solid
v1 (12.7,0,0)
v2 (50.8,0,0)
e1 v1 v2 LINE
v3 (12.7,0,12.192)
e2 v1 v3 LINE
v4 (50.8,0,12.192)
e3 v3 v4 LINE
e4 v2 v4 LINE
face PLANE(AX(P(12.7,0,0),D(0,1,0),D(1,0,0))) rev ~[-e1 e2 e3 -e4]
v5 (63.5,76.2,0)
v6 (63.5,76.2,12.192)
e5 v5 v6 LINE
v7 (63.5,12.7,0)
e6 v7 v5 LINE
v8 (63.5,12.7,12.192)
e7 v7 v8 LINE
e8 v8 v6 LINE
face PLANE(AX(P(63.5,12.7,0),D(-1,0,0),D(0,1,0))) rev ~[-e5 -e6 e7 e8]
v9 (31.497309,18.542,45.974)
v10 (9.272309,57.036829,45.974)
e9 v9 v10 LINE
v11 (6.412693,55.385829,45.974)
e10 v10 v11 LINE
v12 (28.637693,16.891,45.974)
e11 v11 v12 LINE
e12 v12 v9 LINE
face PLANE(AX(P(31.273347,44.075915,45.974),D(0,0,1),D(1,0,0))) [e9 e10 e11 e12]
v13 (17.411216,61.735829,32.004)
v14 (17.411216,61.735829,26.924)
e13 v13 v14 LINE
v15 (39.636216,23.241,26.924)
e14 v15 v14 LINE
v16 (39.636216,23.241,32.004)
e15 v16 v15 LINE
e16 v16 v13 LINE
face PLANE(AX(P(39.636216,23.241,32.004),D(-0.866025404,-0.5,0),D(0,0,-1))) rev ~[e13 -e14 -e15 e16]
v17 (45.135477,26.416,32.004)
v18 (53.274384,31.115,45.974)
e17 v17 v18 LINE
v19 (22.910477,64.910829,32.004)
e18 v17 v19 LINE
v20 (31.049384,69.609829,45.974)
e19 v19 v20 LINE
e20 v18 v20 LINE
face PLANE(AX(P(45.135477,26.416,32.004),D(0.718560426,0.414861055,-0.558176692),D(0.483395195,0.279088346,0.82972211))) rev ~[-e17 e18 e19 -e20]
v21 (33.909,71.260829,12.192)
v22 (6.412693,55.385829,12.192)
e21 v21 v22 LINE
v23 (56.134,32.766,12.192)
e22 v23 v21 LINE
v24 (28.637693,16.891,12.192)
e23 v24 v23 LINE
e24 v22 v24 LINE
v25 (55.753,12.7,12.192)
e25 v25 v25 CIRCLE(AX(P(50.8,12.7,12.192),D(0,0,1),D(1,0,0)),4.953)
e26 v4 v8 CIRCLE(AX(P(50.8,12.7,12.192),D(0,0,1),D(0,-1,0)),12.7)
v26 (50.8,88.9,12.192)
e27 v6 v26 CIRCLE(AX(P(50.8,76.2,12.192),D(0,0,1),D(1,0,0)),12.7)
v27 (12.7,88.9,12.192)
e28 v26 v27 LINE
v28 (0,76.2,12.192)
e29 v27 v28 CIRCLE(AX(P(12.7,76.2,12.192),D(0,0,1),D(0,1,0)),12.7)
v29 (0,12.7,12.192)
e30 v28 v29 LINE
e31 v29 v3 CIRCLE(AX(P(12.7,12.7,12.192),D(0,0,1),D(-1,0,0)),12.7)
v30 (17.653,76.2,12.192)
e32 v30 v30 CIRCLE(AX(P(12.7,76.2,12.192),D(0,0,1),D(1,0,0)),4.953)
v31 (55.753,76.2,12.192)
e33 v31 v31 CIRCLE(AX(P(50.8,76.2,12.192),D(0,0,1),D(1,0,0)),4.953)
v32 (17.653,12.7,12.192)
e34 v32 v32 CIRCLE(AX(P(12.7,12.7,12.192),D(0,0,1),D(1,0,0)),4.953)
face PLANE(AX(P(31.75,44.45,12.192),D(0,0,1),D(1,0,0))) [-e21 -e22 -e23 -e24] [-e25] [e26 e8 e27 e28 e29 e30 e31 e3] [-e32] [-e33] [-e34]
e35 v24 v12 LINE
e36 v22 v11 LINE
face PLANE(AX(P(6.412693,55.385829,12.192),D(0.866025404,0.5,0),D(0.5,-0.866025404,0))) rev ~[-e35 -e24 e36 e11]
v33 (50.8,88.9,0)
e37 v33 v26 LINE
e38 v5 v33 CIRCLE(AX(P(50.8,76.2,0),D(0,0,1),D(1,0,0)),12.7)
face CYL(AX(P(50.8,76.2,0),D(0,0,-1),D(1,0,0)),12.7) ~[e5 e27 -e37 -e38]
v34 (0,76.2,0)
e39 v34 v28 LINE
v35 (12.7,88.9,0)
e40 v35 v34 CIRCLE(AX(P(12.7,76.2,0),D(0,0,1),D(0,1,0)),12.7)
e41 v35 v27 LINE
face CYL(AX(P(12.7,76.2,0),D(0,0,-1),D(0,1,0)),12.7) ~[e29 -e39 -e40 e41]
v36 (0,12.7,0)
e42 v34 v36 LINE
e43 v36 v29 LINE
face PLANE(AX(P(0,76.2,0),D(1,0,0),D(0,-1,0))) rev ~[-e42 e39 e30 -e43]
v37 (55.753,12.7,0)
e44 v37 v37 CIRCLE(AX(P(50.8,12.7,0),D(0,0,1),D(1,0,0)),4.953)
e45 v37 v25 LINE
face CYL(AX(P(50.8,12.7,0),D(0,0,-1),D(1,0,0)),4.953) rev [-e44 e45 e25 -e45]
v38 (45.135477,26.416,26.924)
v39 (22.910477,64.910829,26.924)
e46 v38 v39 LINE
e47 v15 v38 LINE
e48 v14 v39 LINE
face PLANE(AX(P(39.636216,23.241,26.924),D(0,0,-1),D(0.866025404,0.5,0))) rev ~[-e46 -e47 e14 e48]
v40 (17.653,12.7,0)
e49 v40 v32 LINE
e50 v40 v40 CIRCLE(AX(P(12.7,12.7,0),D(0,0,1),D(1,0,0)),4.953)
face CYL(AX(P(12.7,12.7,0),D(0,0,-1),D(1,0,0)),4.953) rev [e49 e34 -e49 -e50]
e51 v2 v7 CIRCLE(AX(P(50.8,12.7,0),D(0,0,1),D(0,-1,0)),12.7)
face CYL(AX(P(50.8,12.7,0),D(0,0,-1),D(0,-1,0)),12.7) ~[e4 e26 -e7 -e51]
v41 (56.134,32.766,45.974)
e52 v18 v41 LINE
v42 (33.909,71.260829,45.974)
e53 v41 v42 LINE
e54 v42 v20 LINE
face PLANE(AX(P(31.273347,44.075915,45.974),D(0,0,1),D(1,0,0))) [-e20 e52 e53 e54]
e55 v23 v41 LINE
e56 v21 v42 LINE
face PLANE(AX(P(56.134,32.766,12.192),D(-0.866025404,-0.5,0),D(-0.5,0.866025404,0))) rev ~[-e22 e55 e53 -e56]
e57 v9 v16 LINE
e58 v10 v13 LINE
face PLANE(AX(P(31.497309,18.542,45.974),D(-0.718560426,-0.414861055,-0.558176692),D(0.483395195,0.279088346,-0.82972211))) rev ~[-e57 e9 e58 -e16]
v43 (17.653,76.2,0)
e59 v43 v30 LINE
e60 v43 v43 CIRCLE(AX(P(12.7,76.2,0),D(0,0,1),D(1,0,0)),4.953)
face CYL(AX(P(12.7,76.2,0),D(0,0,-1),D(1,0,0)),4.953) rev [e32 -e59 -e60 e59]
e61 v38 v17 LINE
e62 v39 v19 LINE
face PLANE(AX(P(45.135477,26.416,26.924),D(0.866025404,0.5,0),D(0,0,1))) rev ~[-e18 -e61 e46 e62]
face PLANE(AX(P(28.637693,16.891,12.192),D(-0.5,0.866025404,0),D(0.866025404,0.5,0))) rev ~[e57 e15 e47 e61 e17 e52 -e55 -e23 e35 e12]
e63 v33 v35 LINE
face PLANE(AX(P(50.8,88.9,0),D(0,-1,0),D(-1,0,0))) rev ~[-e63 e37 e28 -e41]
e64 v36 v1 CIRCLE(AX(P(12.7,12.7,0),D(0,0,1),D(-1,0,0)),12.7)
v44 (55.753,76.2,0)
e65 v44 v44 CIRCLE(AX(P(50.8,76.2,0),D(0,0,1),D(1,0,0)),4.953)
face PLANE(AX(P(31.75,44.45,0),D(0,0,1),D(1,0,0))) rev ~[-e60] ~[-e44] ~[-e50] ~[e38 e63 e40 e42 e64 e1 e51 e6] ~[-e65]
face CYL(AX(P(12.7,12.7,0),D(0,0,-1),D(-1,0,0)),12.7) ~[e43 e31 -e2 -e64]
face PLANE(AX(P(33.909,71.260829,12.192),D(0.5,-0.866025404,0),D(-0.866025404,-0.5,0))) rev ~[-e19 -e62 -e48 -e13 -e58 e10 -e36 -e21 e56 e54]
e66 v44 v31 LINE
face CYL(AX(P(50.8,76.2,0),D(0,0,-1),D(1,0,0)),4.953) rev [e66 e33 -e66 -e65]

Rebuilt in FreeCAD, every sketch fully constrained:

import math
import FreeCAD as App
import Part
import Sketcher
from FreeCAD import Vector
Q = App.Units.Quantity


def add_polygon(sketch, points):
    """Adds a closed chain of lines whose ends are joined by coincident constraints."""
    first, n = sketch.GeometryCount, len(points)
    for a, b in zip(points, points[1:] + points[:1]):
        sketch.addGeometry(Part.LineSegment(App.Vector(*a, 0), App.Vector(*b, 0)), False)
    for i in range(n):
        sketch.addConstraint(Sketcher.Constraint("Coincident", first + i, 2, first + (i + 1) % n, 1))

doc = App.newDocument("Part")
body = doc.addObject("PartDesign::Body", "Body")

# Sketch on XY plane
sketch1 = doc.addObject("Sketcher::SketchObject", "Sketch")
body.addObject(sketch1)
sketch1.AttachmentSupport = (doc.XY_Plane, [""])
sketch1.MapMode = "FlatFace"
sketch1.addGeometry(Part.ArcOfCircle(Part.Circle(Vector(12.7, 12.7, 0), Vector(0, 0, 1), 12.7), math.radians(180), math.radians(270)), False)
sketch1.addGeometry(Part.LineSegment(Vector(12.7, 0, 0), Vector(50.8, 0, 0)), False)
sketch1.addGeometry(Part.ArcOfCircle(Part.Circle(Vector(50.8, 12.7, 0), Vector(0, 0, 1), 12.7), math.radians(-90), math.radians(0)), False)
sketch1.addGeometry(Part.LineSegment(Vector(63.5, 12.7, 0), Vector(63.5, 76.2, 0)), False)
sketch1.addGeometry(Part.ArcOfCircle(Part.Circle(Vector(50.8, 76.2, 0), Vector(0, 0, 1), 12.7), math.radians(0), math.radians(90)), False)
sketch1.addGeometry(Part.LineSegment(Vector(50.8, 88.9, 0), Vector(12.7, 88.9, 0)), False)
sketch1.addGeometry(Part.ArcOfCircle(Part.Circle(Vector(12.7, 76.2, 0), Vector(0, 0, 1), 12.7), math.radians(90), math.radians(180)), False)
sketch1.addGeometry(Part.LineSegment(Vector(0, 76.2, 0), Vector(0, 12.7, 0)), False)
sketch1.addGeometry(Part.Circle(Vector(12.7, 12.7, 0), Vector(0, 0, 1), 5), False)
sketch1.addGeometry(Part.Circle(Vector(50.8, 12.7, 0), Vector(0, 0, 1), 5), False)
sketch1.addGeometry(Part.Circle(Vector(12.7, 76.2, 0), Vector(0, 0, 1), 5), False)
sketch1.addGeometry(Part.Circle(Vector(50.8, 76.2, 0), Vector(0, 0, 1), 5), False)
sketch1.addConstraint(Sketcher.Constraint("Tangent", 0, 2, 1, 1))
sketch1.addConstraint(Sketcher.Constraint("Tangent", 1, 2, 2, 1))
sketch1.addConstraint(Sketcher.Constraint("Tangent", 2, 2, 3, 1))
sketch1.addConstraint(Sketcher.Constraint("Tangent", 3, 2, 4, 1))
sketch1.addConstraint(Sketcher.Constraint("Tangent", 4, 2, 5, 1))
sketch1.addConstraint(Sketcher.Constraint("Tangent", 5, 2, 6, 1))
sketch1.addConstraint(Sketcher.Constraint("Tangent", 6, 2, 7, 1))
sketch1.addConstraint(Sketcher.Constraint("Tangent", 7, 2, 0, 1))
sketch1.addConstraint(Sketcher.Constraint("Horizontal", 1))
sketch1.addConstraint(Sketcher.Constraint("Vertical", 3))
sketch1.addConstraint(Sketcher.Constraint("Horizontal", 5))
sketch1.addConstraint(Sketcher.Constraint("Vertical", 7))
sketch1.addConstraint(Sketcher.Constraint("Coincident", 8, 3, 0, 3))
sketch1.addConstraint(Sketcher.Constraint("Coincident", 9, 3, 2, 3))
sketch1.addConstraint(Sketcher.Constraint("Coincident", 10, 3, 6, 3))
sketch1.addConstraint(Sketcher.Constraint("Coincident", 11, 3, 4, 3))
sketch1.addConstraint(Sketcher.Constraint("Equal", 0, 2))
sketch1.addConstraint(Sketcher.Constraint("Equal", 2, 4))
sketch1.addConstraint(Sketcher.Constraint("Equal", 4, 6))
sketch1.addConstraint(Sketcher.Constraint("Equal", 8, 9))
sketch1.addConstraint(Sketcher.Constraint("Equal", 9, 10))
sketch1.addConstraint(Sketcher.Constraint("Equal", 10, 11))
sketch1.addConstraint(Sketcher.Constraint("PointOnObject", 0, 2, -1))
sketch1.addConstraint(Sketcher.Constraint("PointOnObject", 6, 2, -2))
sketch1.addConstraint(Sketcher.Constraint("Radius", 0, Q("0.5 in")))
sketch1.addConstraint(Sketcher.Constraint("Diameter", 8, Q("0.39 in")))
sketch1.addConstraint(Sketcher.Constraint("DistanceX", 1, 1, 1, 2, Q("1.5 in")))
sketch1.addConstraint(Sketcher.Constraint("DistanceY", 3, 1, 3, 2, Q("2.5 in")))
pad1 = doc.addObject("PartDesign::Pad", "Pad")
body.addObject(pad1)
pad1.Profile = sketch1
pad1.Length = Q("0.48 in")

# Sketch on XY plane
sketch2 = doc.addObject("Sketcher::SketchObject", "Sketch001")
body.addObject(sketch2)
sketch2.AttachmentSupport = (doc.XY_Plane, [""])
sketch2.MapMode = "FlatFace"
sketch2.AttachmentOffset = App.Placement(Vector(0, 0, 0.48 * 25.4), App.Rotation())
add_polygon(sketch2, [(29, 17), (56, 33), (34, 71), (6, 55)])  # lines 0-3
sketch2.addConstraint(Sketcher.Constraint("Perpendicular", 0, 1))
sketch2.addConstraint(Sketcher.Constraint("Perpendicular", 1, 2))
sketch2.addConstraint(Sketcher.Constraint("Perpendicular", 2, 3))
sketch2.addConstraint(Sketcher.Constraint("Angle", 0, Q("30 deg")))
sketch2.addConstraint(Sketcher.Constraint("Distance", 0, Q("1.25 in")))
sketch2.addConstraint(Sketcher.Constraint("Distance", 1, Q("1.75 in")))
sketch2.addConstraint(Sketcher.Constraint("DistanceX", -1, 1, 0, 2, Q("2.21 in")))
sketch2.addConstraint(Sketcher.Constraint("DistanceY", -1, 1, 0, 2, Q("1.29 in")))
pad2 = doc.addObject("PartDesign::Pad", "Pad001")
body.addObject(pad2)
pad2.Profile = sketch2
pad2.Length = Q("1.33 in")

# Sketch on an angled plane
sketch3 = doc.addObject("Sketcher::SketchObject", "Sketch002")
body.addObject(sketch3)
sketch3.Placement = App.Placement(Vector(-0.154594, 0.267765, 0), App.Rotation(Vector(0.866025404, 0.5, 0), Vector(0, 0, 1), Vector(0.5, -0.866025404, 0), "ZXY"))
add_polygon(sketch3, [(52, 32), (62, 46), (37, 46), (46, 32), (46, 27), (52, 27)])  # lines 0-5
sketch3.addConstraint(Sketcher.Constraint("Horizontal", 1))
sketch3.addConstraint(Sketcher.Constraint("Vertical", 3))
sketch3.addConstraint(Sketcher.Constraint("Horizontal", 4))
sketch3.addConstraint(Sketcher.Constraint("Vertical", 5))
sketch3.addConstraint(Sketcher.Constraint("Horizontal", 2, 2, 5, 2))
sketch3.addConstraint(Sketcher.Constraint("Equal", 0, 2))
sketch3.addConstraint(Sketcher.Constraint("DistanceY", 3, 2, 3, 1, Q("0.2 in")))
sketch3.addConstraint(Sketcher.Constraint("DistanceX", 1, 2, 1, 1, Q("0.99 in")))
sketch3.addConstraint(Sketcher.Constraint("DistanceX", 4, 1, 4, 2, Q("0.25 in")))
sketch3.addConstraint(Sketcher.Constraint("DistanceY", -1, 1, 0, 2, Q("1.81 in")))
sketch3.addConstraint(Sketcher.Constraint("DistanceY", -1, 1, 2, 2, Q("1.26 in")))
sketch3.addConstraint(Sketcher.Constraint("DistanceX", -1, 1, 0, 2, 61.69447))
pocket1 = doc.addObject("PartDesign::Pocket", "Pocket")
body.addObject(pocket1)
pocket1.Profile = sketch3
pocket1.Type = "ThroughAll"

doc.recompute()
